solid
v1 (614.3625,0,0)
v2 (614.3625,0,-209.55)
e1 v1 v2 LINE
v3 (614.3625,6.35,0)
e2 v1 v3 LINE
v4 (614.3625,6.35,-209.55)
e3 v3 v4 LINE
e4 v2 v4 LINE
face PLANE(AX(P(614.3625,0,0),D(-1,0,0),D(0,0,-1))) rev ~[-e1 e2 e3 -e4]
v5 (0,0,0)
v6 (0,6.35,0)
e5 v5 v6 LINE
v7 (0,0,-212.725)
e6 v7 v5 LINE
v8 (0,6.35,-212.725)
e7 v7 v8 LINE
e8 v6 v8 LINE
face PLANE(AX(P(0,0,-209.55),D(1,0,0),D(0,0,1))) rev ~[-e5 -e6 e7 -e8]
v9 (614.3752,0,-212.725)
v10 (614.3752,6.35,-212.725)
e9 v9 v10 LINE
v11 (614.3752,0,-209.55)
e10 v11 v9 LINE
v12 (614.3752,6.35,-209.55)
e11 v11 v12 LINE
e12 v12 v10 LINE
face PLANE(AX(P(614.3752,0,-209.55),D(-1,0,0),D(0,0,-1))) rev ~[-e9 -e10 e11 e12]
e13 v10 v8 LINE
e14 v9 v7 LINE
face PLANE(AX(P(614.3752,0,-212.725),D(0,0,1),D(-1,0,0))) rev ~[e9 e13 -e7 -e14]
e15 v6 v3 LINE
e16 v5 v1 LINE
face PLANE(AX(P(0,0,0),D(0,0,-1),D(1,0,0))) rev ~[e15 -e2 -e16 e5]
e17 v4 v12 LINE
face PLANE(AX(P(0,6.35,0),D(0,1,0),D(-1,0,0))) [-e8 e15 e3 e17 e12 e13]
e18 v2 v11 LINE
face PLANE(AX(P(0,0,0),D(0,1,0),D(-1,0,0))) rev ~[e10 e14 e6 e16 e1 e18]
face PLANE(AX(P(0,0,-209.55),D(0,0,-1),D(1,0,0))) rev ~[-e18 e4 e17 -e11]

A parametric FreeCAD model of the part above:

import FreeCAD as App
import Part
import Sketcher

V = App.Vector
Q = App.Units.Quantity


def add_polygon(sketch, points):
    """Adds a closed chain of lines whose ends are joined by coincident constraints."""
    first, n = sketch.GeometryCount, len(points)
    for a, b in zip(points, points[1:] + points[:1]):
        sketch.addGeometry(Part.LineSegment(App.Vector(*a, 0), App.Vector(*b, 0)), False)
    for i in range(n):
        sketch.addConstraint(Sketcher.Constraint("Coincident", first + i, 2, first + (i + 1) % n, 1))

doc = App.newDocument("Part")
params = doc.addObject("Spreadsheet::Sheet", "Params")
for row, (alias, value) in enumerate([
    ("sketch1_height", "8.25 in"),
    ("sketch1_width", "24.1875 in"),
    ("pad1_length", "0.25 in"),
    ("sketch2_width", "24.188 in"),
    ("sketch2_height", "0.125 in"),
    ("pad2_length", "0.25 in"),
], start=1):
    params.set(f"A{row}", alias)
    params.set(f"B{row}", "=" + value)
    params.setAlias(f"B{row}", alias)

body = doc.addObject("PartDesign::Body", "Body")

# Sketch on XZ plane
sketch1 = body.newObject("Sketcher::SketchObject", "Sketch")
sketch1.AttachmentSupport = (doc.getObject("XZ_Plane"), [""])
sketch1.MapMode = "FlatFace"
add_polygon(sketch1, [(0, -210), (0, 0), (614, 0), (614, -210)])  # lines 0-3
sketch1.addConstraint([
    Sketcher.Constraint("Vertical", 0),
    Sketcher.Constraint("Horizontal", 1),
    Sketcher.Constraint("Vertical", 2),
    Sketcher.Constraint("Horizontal", 3),
    Sketcher.Constraint("Coincident", 0, 2, -1, 1),
    Sketcher.Constraint("DistanceY", 0, 1, 0, 2, Q("8.25 in")),
    Sketcher.Constraint("DistanceX", 1, 1, 1, 2, Q("24.1875 in")),
])
sketch1.setExpression("Constraints[9]", "Params.sketch1_height")
sketch1.setExpression("Constraints[10]", "Params.sketch1_width")
pad1 = body.newObject("PartDesign::Pad", "Pad")
pad1.Profile = sketch1
pad1.setExpression("Length", "Params.pad1_length")
pad1.Reversed = True

# Sketch on XZ plane
sketch2 = body.newObject("Sketcher::SketchObject", "Sketch001")
sketch2.AttachmentSupport = (doc.getObject("XZ_Plane"), [""])
sketch2.MapMode = "FlatFace"
add_polygon(sketch2, [(0, -212.7), (0, -209.6), (614.4, -209.6), (614.4, -212.7)])  # lines 0-3
sketch2.addConstraint([
    Sketcher.Constraint("Vertical", 0),
    Sketcher.Constraint("Horizontal", 1),
    Sketcher.Constraint("Vertical", 2),
    Sketcher.Constraint("Horizontal", 3),
    Sketcher.Constraint("PointOnObject", 0, 2, -2),
    Sketcher.Constraint("DistanceX", 1, 1, 1, 2, Q("24.188 in")),
    Sketcher.Constraint("DistanceY", 0, 1, 0, 2, Q("0.125 in")),
    Sketcher.Constraint("DistanceY", 0, 2, -1, 1, Q("8.25 in")),
])
sketch2.setExpression("Constraints[9]", "Params.sketch2_width")
sketch2.setExpression("Constraints[10]", "Params.sketch2_height")
pad2 = body.newObject("PartDesign::Pad", "Pad001")
pad2.Profile = sketch2
pad2.setExpression("Length", "Params.pad2_length")
pad2.Reversed = True

doc.recompute()
